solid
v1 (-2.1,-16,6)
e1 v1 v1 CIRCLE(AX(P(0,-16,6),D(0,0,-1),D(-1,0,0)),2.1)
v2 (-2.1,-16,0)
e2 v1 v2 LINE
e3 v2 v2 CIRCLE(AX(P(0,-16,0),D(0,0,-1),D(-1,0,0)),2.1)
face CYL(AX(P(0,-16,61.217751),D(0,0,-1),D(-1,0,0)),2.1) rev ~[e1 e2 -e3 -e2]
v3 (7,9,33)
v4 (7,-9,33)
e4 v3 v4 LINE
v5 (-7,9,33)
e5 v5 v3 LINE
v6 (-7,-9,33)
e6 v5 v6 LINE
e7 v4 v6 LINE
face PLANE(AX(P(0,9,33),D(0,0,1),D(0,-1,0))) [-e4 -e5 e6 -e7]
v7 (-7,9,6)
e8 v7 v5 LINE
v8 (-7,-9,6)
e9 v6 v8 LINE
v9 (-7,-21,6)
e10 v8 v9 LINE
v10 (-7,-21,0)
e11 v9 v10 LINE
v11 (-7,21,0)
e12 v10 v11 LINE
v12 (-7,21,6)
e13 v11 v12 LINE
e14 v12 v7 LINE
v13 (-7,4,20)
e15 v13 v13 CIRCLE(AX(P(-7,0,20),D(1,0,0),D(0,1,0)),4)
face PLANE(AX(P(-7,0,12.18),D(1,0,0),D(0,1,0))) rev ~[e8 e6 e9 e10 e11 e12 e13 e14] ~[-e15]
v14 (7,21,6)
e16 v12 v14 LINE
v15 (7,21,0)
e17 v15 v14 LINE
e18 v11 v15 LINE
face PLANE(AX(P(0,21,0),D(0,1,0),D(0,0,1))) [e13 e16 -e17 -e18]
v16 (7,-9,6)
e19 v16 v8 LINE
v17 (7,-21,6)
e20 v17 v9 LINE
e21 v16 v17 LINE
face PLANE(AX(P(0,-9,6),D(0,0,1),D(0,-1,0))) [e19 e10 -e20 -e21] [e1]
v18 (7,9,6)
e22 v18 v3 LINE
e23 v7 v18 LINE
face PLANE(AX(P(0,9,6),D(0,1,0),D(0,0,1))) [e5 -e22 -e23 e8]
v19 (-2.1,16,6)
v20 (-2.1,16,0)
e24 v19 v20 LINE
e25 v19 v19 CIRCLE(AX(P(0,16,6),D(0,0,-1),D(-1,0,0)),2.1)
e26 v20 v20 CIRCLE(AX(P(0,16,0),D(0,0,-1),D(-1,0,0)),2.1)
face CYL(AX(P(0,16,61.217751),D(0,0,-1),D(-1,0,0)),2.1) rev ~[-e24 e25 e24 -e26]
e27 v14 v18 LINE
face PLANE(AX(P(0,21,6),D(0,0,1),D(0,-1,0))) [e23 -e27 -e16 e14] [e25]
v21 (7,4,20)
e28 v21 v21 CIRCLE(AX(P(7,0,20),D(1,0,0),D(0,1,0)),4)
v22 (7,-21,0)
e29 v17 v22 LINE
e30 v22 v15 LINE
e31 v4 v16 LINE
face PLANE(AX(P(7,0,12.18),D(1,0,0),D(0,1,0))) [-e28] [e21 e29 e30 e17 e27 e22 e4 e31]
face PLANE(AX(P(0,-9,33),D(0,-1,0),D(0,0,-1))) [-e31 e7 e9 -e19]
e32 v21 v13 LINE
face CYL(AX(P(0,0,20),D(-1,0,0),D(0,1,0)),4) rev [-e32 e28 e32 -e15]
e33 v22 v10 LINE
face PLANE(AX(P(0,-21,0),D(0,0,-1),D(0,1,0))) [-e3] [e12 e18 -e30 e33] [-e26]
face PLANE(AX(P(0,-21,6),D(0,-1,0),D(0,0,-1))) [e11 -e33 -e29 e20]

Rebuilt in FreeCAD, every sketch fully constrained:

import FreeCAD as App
import Part
import Sketcher

V = App.Vector
Q = App.Units.Quantity

doc = App.newDocument("Part")
body = doc.addObject("PartDesign::Body", "Body")

# Sketch on YZ plane
sketch1 = body.newObject("Sketcher::SketchObject", "Sketch")
sketch1.AttachmentSupport = (doc.getObject("YZ_Plane"), [""])
sketch1.MapMode = "FlatFace"
sketch1.addGeometry([
    Part.LineSegment(V(-21, 0, 0), V(21, 0, 0)),  # 0
    Part.LineSegment(V(21, 0, 0), V(21, 6, 0)),  # 1
    Part.LineSegment(V(21, 6, 0), V(9, 6, 0)),  # 2
    Part.LineSegment(V(9, 6, 0), V(9, 33, 0)),  # 3
    Part.LineSegment(V(9, 33, 0), V(-9, 33, 0)),  # 4
    Part.LineSegment(V(-9, 33, 0), V(-9, 6, 0)),  # 5
    Part.LineSegment(V(-9, 6, 0), V(-21, 6, 0)),  # 6
    Part.LineSegment(V(-21, 6, 0), V(-21, 0, 0)),  # 7
    Part.Circle(V(0, 20, 0), V(0, 0, 1), 4),  # 8
], False)
sketch1.addConstraint([
    Sketcher.Constraint("Coincident", 0, 2, 1, 1),
    Sketcher.Constraint("Coincident", 1, 2, 2, 1),
    Sketcher.Constraint("Coincident", 2, 2, 3, 1),
    Sketcher.Constraint("Coincident", 3, 2, 4, 1),
    Sketcher.Constraint("Coincident", 4, 2, 5, 1),
    Sketcher.Constraint("Coincident", 5, 2, 6, 1),
    Sketcher.Constraint("Coincident", 6, 2, 7, 1),
    Sketcher.Constraint("Coincident", 7, 2, 0, 1),
    Sketcher.Constraint("Horizontal", 0),
    Sketcher.Constraint("Vertical", 1),
    Sketcher.Constraint("Horizontal", 2),
    Sketcher.Constraint("Vertical", 3),
    Sketcher.Constraint("Horizontal", 4),
    Sketcher.Constraint("Vertical", 5),
    Sketcher.Constraint("Horizontal", 6),
    Sketcher.Constraint("Vertical", 7),
    Sketcher.Constraint("Symmetric", 0, 2, 7, 2, -1, 1),
    Sketcher.Constraint("Symmetric", 2, 2, 5, 2, -2),
    Sketcher.Constraint("PointOnObject", 8, 3, -2),
    Sketcher.Constraint("Diameter", 8, Q("8 mm")),
    Sketcher.Constraint("DistanceX", 0, 1, 0, 2, Q("42 mm")),
    Sketcher.Constraint("DistanceX", 2, 2, 2, 1, Q("12 mm")),
    Sketcher.Constraint("DistanceY", 1, 1, 1, 2, Q("6 mm")),
    Sketcher.Constraint("DistanceY", 3, 1, 3, 2, Q("27 mm")),
    Sketcher.Constraint("DistanceY", -1, 1, 8, 3, Q("20 mm")),
])
pad1 = body.newObject("PartDesign::Pad", "Pad")
pad1.Profile = sketch1
pad1.Length = 14
pad1.Midplane = True

# Sketch on XY plane
sketch2 = body.newObject("Sketcher::SketchObject", "Sketch001")
sketch2.AttachmentSupport = (doc.getObject("XY_Plane"), [""])
sketch2.MapMode = "FlatFace"
sketch2.AttachmentOffset = App.Placement(V(0, 0, 6), App.Rotation())
sketch2.addGeometry([
    Part.Circle(V(0, -16, 0), V(0, 0, 1), 2.1),
    Part.Circle(V(0, 16, 0), V(0, 0, 1), 2.1),
], False)
sketch2.addConstraint([
    Sketcher.Constraint("Equal", 0, 1),
    Sketcher.Constraint("Symmetric", 0, 3, 1, 3, -1, 1),
    Sketcher.Constraint("PointOnObject", 0, 3, -2),
    Sketcher.Constraint("Diameter", 0, Q("4.2 mm")),
    Sketcher.Constraint("DistanceY", 0, 3, -1, 1, Q("16 mm")),
])
doc.recompute()
hole = body.newObject("PartDesign::Hole", "Hole")
hole.Profile = sketch2
hole.ThreadType = "None"
hole.Diameter = 4.2
hole.DepthType = "ThroughAll"

doc.recompute()
